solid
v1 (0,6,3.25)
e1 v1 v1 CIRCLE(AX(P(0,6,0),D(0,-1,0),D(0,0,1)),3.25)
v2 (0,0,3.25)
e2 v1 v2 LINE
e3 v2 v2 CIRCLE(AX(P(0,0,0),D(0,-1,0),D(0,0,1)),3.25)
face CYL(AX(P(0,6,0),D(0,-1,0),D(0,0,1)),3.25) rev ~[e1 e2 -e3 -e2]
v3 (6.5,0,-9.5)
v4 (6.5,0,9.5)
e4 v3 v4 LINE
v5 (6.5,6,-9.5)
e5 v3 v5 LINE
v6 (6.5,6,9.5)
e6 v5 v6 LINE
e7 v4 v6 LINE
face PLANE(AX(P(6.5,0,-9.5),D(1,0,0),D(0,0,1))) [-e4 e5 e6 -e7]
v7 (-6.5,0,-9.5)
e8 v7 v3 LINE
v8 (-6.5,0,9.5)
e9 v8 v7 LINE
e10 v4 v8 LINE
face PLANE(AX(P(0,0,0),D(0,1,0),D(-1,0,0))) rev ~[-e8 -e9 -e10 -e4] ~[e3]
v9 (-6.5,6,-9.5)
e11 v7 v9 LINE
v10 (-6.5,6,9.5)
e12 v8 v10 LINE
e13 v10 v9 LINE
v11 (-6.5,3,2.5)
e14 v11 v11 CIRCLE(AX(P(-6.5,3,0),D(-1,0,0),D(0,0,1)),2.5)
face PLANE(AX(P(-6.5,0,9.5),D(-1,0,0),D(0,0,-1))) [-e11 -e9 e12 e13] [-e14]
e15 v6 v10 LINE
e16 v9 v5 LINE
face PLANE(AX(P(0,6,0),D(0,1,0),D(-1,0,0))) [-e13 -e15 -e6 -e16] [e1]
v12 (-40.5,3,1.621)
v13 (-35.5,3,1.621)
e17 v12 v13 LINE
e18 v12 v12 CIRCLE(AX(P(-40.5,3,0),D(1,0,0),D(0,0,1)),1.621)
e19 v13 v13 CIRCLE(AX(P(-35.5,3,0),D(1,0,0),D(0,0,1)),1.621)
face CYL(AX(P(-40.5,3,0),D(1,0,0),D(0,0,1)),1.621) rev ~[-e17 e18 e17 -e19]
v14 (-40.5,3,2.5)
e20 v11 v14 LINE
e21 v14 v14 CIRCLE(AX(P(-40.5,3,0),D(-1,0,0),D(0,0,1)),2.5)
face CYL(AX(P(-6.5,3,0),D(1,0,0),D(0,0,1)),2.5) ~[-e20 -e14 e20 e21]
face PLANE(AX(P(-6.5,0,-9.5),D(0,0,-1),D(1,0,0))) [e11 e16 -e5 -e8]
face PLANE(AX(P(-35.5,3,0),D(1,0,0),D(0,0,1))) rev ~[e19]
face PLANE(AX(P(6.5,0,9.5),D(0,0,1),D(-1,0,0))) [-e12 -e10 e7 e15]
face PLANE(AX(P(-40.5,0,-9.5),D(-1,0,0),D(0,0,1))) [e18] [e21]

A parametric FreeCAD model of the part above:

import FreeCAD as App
import Part
import Sketcher
Q = App.Units.Quantity


def add_polygon(sketch, points):
    """Adds a closed chain of lines whose ends are joined by coincident constraints."""
    first, n = sketch.GeometryCount, len(points)
    for a, b in zip(points, points[1:] + points[:1]):
        sketch.addGeometry(Part.LineSegment(App.Vector(*a, 0), App.Vector(*b, 0)), False)
    for i in range(n):
        sketch.addConstraint(Sketcher.Constraint("Coincident", first + i, 2, first + (i + 1) % n, 1))

doc = App.newDocument("Part")
params = doc.addObject("Spreadsheet::Sheet", "Params")
for row, (alias, value) in enumerate([
    ("sketch1_width", "13 mm"),
    ("sketch1_height", "19 mm"),
    ("pad1_length", "6 mm"),
    ("sketch2_diameter", "6.5 mm"),
    ("hole_diameter", "6.5 mm"),
    ("hole_depth", "6 mm"),
    ("sketch3_diameter", "5 mm"),
    ("pad2_length", "34 mm"),
    ("hole2_diameter", "3.242 mm"),
    ("hole2_depth", "5 mm"),
], start=1):
    params.set(f"A{row}", alias)
    params.set(f"B{row}", "=" + value)
    params.setAlias(f"B{row}", alias)

body = doc.addObject("PartDesign::Body", "Body")

# Sketch on XZ plane
sketch1 = body.newObject("Sketcher::SketchObject", "Sketch")
sketch1.AttachmentSupport = (doc.getObject("XZ_Plane"), [""])
sketch1.MapMode = "FlatFace"
add_polygon(sketch1, [(-6.5, 9.5), (6.5, 9.5), (6.5, -9.5), (-6.5, -9.5)])  # lines 0-3
sketch1.addConstraint(Sketcher.Constraint("Horizontal", 0))
sketch1.addConstraint(Sketcher.Constraint("Vertical", 1))
sketch1.addConstraint(Sketcher.Constraint("Horizontal", 2))
sketch1.addConstraint(Sketcher.Constraint("Vertical", 3))
sketch1.addConstraint(Sketcher.Constraint("Symmetric", 0, 2, 2, 2, -1, 1))
sketch1.addConstraint(Sketcher.Constraint("DistanceX", 0, 1, 0, 2, Q("13 mm")))
sketch1.addConstraint(Sketcher.Constraint("DistanceY", 1, 2, 1, 1, Q("19 mm")))
sketch1.setExpression("Constraints[9]", "Params.sketch1_width")
sketch1.setExpression("Constraints[10]", "Params.sketch1_height")
pad1 = body.newObject("PartDesign::Pad", "Pad")
pad1.Profile = sketch1
pad1.setExpression("Length", "Params.pad1_length")
pad1.Reversed = True

# Sketch on XZ plane
sketch2 = body.newObject("Sketcher::SketchObject", "Sketch001")
sketch2.AttachmentSupport = (doc.getObject("XZ_Plane"), [""])
sketch2.MapMode = "FlatFace"
sketch2.AttachmentOffset = App.Placement(App.Vector(0, 0, -6), App.Rotation())
sketch2.addGeometry(Part.Circle(App.Vector(0, 0, 0), App.Vector(0, 0, 1), 3.25), False)
sketch2.addConstraint(Sketcher.Constraint("Coincident", 0, 3, -1, 1))
sketch2.addConstraint(Sketcher.Constraint("Diameter", 0, Q("6.5 mm")))
sketch2.setExpression("Constraints[1]", "Params.sketch2_diameter")
doc.recompute()
hole = body.newObject("PartDesign::Hole", "Hole")
hole.Profile = sketch2
hole.ThreadType = "None"
hole.setExpression("Diameter", "Params.hole_diameter")
hole.DepthType = "Dimension"
hole.setExpression("Depth", "Params.hole_depth")
hole.DrillPoint = "Flat"
hole.Reversed = True

# Sketch on YZ plane
sketch3 = body.newObject("Sketcher::SketchObject", "Sketch002")
sketch3.AttachmentSupport = (doc.getObject("YZ_Plane"), [""])
sketch3.MapMode = "FlatFace"
sketch3.AttachmentOffset = App.Placement(App.Vector(0, 0, -6.5), App.Rotation())
sketch3.addGeometry(Part.Circle(App.Vector(3, 0, 0), App.Vector(0, 0, 1), 2.5), False)
sketch3.addConstraint(Sketcher.Constraint("PointOnObject", 0, 3, -1))
sketch3.addConstraint(Sketcher.Constraint("Diameter", 0, Q("5 mm")))
sketch3.addConstraint(Sketcher.Constraint("DistanceX", -1, 1, 0, 3, Q("3 mm")))
sketch3.setExpression("Constraints[1]", "Params.sketch3_diameter")
pad2 = body.newObject("PartDesign::Pad", "Pad001")
pad2.Profile = sketch3
pad2.setExpression("Length", "Params.pad2_length")
pad2.Reversed = True

# Sketch on YZ plane
sketch4 = body.newObject("Sketcher::SketchObject", "Sketch003")
sketch4.AttachmentSupport = (doc.getObject("YZ_Plane"), [""])
sketch4.MapMode = "FlatFace"
sketch4.AttachmentOffset = App.Placement(App.Vector(0, 0, -40.5), App.Rotation())
sketch4.addGeometry(Part.Circle(App.Vector(3, 0, 0), App.Vector(0, 0, 1), 1.621), False)
sketch4.addConstraint(Sketcher.Constraint("PointOnObject", 0, 3, -1))
sketch4.addConstraint(Sketcher.Constraint("Diameter", 0, Q("3.242 mm")))
sketch4.addConstraint(Sketcher.Constraint("DistanceX", -1, 1, 0, 3, Q("3 mm")))
doc.recompute()
hole2 = body.newObject("PartDesign::Hole", "Hole001")
hole2.Profile = sketch4
hole2.ThreadType = "None"
hole2.setExpression("Diameter", "Params.hole2_diameter")
hole2.DepthType = "Dimension"
hole2.setExpression("Depth", "Params.hole2_depth")
hole2.DrillPoint = "Flat"
hole2.Reversed = True

doc.recompute()
